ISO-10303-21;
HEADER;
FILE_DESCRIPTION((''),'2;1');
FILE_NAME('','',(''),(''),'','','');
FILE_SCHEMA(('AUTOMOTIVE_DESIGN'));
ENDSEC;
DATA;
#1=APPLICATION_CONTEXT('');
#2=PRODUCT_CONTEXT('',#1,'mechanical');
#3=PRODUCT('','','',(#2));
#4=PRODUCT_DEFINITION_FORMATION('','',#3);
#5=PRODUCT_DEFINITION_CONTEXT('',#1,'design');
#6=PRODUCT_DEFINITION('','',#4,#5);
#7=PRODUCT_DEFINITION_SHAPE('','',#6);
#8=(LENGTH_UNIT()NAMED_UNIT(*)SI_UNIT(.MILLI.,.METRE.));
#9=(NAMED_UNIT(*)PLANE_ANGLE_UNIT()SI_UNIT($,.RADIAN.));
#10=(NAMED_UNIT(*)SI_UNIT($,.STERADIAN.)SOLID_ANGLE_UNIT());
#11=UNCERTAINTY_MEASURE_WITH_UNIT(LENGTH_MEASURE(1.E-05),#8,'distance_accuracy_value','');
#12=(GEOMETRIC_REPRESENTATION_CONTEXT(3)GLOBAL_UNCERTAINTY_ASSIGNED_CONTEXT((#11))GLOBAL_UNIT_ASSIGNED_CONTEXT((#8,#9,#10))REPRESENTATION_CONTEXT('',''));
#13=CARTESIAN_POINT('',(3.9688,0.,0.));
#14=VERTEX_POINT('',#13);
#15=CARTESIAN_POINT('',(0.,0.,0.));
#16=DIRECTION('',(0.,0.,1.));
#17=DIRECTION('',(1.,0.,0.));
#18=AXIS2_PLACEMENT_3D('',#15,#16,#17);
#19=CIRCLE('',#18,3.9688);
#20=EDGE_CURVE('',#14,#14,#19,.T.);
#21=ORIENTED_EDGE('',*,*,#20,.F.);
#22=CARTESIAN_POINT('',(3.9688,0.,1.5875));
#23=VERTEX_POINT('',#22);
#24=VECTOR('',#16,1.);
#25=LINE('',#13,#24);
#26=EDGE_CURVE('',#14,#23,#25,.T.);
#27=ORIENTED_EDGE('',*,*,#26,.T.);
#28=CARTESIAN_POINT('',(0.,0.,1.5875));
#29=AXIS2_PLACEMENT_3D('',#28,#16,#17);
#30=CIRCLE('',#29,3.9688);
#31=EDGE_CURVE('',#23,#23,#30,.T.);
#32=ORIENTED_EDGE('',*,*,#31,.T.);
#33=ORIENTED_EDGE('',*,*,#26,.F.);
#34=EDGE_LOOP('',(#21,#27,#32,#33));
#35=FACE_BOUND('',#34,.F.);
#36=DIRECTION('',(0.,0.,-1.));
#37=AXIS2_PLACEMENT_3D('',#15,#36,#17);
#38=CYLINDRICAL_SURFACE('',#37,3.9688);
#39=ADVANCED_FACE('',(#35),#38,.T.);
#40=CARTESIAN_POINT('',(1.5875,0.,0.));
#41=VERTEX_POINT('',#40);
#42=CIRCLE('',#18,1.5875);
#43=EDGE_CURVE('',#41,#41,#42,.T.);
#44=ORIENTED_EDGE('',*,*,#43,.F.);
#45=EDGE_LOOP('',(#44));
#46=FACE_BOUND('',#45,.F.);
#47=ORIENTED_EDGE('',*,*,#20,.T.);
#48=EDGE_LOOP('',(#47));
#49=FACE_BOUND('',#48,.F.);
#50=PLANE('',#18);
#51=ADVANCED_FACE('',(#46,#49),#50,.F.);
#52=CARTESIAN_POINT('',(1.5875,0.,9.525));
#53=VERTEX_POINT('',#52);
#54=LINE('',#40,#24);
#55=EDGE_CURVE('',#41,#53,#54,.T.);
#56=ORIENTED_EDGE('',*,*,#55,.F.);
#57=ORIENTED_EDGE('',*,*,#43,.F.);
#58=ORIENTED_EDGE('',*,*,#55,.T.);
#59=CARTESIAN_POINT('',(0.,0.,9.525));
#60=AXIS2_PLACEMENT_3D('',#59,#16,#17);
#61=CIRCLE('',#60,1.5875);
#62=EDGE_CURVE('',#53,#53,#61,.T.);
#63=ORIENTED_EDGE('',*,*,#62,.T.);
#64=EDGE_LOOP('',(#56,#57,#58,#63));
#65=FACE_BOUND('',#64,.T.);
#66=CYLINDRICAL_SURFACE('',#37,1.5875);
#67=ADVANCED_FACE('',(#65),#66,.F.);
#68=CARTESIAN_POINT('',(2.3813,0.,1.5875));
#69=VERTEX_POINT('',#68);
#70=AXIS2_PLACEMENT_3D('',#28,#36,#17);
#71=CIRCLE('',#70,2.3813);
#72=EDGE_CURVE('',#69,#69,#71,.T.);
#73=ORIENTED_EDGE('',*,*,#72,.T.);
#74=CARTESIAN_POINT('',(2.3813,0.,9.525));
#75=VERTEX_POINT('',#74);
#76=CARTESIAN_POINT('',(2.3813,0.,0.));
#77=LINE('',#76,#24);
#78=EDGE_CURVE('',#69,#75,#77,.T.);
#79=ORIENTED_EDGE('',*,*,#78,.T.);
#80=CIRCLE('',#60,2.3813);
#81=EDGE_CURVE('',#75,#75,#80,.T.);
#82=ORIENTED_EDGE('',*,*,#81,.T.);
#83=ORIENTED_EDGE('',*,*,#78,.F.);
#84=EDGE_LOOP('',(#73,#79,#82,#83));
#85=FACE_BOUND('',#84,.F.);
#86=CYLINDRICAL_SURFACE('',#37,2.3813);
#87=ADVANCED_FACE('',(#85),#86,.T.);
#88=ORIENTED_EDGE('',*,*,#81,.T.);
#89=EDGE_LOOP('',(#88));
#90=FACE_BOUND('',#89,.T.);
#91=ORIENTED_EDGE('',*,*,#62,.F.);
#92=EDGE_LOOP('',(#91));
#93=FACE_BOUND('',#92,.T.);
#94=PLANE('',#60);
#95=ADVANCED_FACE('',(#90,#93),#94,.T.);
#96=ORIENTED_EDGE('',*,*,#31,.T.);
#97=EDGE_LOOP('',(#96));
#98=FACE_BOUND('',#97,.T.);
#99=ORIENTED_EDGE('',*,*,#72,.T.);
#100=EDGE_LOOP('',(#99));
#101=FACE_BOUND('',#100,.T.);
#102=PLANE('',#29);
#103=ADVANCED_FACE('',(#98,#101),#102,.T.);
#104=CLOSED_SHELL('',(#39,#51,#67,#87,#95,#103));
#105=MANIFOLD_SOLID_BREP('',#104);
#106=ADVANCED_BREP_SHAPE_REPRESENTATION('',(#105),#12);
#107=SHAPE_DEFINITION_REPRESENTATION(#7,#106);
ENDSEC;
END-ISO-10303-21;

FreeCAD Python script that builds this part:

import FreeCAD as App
import Part
import Sketcher
Q = App.Units.Quantity

doc = App.newDocument("Part")
params = doc.addObject("Spreadsheet::Sheet", "Params")
for row, (alias, value) in enumerate([
    ("sketch1_diameter", "0.3125 in"),
    ("sketch1_diameter2", "0.125 in"),
    ("pad1_length", "0.0625 in"),
    ("sketch2_diameter", "0.1875 in"),
    ("sketch2_diameter2", "0.125 in"),
    ("pad2_length", "0.375 in"),
], start=1):
    params.set(f"A{row}", alias)
    params.set(f"B{row}", "=" + value)
    params.setAlias(f"B{row}", alias)

body = doc.addObject("PartDesign::Body", "Body")

# Sketch on XY plane
sketch1 = body.newObject("Sketcher::SketchObject", "Sketch")
sketch1.AttachmentSupport = (doc.getObject("XY_Plane"), [""])
sketch1.MapMode = "FlatFace"
sketch1.addGeometry(Part.Circle(App.Vector(0, 0, 0), App.Vector(0, 0, 1), 4), False)
sketch1.addGeometry(Part.Circle(App.Vector(0, 0, 0), App.Vector(0, 0, 1), 1.6), False)
sketch1.addConstraint(Sketcher.Constraint("Coincident", 0, 3, -1, 1))
sketch1.addConstraint(Sketcher.Constraint("Coincident", 1, 3, -1, 1))
sketch1.addConstraint(Sketcher.Constraint("Diameter", 0, Q("0.3125 in")))
sketch1.addConstraint(Sketcher.Constraint("Diameter", 1, Q("0.125 in")))
sketch1.setExpression("Constraints[2]", "Params.sketch1_diameter")
sketch1.setExpression("Constraints[3]", "Params.sketch1_diameter2")
pad1 = body.newObject("PartDesign::Pad", "Pad")
pad1.Profile = sketch1
pad1.setExpression("Length", "Params.pad1_length")

# Sketch on XY plane
sketch2 = body.newObject("Sketcher::SketchObject", "Sketch001")
sketch2.AttachmentSupport = (doc.getObject("XY_Plane"), [""])
sketch2.MapMode = "FlatFace"
sketch2.addGeometry(Part.Circle(App.Vector(0, 0, 0), App.Vector(0, 0, 1), 2.4), False)
sketch2.addGeometry(Part.Circle(App.Vector(0, 0, 0), App.Vector(0, 0, 1), 1.6), False)
sketch2.addConstraint(Sketcher.Constraint("Coincident", 0, 3, -1, 1))
sketch2.addConstraint(Sketcher.Constraint("Coincident", 1, 3, -1, 1))
sketch2.addConstraint(Sketcher.Constraint("Diameter", 0, Q("0.1875 in")))
sketch2.addConstraint(Sketcher.Constraint("Diameter", 1, Q("0.125 in")))
sketch2.setExpression("Constraints[2]", "Params.sketch2_diameter")
sketch2.setExpression("Constraints[3]", "Params.sketch2_diameter2")
pad2 = body.newObject("PartDesign::Pad", "Pad001")
pad2.Profile = sketch2
pad2.setExpression("Length", "Params.pad2_length")

doc.recompute()
